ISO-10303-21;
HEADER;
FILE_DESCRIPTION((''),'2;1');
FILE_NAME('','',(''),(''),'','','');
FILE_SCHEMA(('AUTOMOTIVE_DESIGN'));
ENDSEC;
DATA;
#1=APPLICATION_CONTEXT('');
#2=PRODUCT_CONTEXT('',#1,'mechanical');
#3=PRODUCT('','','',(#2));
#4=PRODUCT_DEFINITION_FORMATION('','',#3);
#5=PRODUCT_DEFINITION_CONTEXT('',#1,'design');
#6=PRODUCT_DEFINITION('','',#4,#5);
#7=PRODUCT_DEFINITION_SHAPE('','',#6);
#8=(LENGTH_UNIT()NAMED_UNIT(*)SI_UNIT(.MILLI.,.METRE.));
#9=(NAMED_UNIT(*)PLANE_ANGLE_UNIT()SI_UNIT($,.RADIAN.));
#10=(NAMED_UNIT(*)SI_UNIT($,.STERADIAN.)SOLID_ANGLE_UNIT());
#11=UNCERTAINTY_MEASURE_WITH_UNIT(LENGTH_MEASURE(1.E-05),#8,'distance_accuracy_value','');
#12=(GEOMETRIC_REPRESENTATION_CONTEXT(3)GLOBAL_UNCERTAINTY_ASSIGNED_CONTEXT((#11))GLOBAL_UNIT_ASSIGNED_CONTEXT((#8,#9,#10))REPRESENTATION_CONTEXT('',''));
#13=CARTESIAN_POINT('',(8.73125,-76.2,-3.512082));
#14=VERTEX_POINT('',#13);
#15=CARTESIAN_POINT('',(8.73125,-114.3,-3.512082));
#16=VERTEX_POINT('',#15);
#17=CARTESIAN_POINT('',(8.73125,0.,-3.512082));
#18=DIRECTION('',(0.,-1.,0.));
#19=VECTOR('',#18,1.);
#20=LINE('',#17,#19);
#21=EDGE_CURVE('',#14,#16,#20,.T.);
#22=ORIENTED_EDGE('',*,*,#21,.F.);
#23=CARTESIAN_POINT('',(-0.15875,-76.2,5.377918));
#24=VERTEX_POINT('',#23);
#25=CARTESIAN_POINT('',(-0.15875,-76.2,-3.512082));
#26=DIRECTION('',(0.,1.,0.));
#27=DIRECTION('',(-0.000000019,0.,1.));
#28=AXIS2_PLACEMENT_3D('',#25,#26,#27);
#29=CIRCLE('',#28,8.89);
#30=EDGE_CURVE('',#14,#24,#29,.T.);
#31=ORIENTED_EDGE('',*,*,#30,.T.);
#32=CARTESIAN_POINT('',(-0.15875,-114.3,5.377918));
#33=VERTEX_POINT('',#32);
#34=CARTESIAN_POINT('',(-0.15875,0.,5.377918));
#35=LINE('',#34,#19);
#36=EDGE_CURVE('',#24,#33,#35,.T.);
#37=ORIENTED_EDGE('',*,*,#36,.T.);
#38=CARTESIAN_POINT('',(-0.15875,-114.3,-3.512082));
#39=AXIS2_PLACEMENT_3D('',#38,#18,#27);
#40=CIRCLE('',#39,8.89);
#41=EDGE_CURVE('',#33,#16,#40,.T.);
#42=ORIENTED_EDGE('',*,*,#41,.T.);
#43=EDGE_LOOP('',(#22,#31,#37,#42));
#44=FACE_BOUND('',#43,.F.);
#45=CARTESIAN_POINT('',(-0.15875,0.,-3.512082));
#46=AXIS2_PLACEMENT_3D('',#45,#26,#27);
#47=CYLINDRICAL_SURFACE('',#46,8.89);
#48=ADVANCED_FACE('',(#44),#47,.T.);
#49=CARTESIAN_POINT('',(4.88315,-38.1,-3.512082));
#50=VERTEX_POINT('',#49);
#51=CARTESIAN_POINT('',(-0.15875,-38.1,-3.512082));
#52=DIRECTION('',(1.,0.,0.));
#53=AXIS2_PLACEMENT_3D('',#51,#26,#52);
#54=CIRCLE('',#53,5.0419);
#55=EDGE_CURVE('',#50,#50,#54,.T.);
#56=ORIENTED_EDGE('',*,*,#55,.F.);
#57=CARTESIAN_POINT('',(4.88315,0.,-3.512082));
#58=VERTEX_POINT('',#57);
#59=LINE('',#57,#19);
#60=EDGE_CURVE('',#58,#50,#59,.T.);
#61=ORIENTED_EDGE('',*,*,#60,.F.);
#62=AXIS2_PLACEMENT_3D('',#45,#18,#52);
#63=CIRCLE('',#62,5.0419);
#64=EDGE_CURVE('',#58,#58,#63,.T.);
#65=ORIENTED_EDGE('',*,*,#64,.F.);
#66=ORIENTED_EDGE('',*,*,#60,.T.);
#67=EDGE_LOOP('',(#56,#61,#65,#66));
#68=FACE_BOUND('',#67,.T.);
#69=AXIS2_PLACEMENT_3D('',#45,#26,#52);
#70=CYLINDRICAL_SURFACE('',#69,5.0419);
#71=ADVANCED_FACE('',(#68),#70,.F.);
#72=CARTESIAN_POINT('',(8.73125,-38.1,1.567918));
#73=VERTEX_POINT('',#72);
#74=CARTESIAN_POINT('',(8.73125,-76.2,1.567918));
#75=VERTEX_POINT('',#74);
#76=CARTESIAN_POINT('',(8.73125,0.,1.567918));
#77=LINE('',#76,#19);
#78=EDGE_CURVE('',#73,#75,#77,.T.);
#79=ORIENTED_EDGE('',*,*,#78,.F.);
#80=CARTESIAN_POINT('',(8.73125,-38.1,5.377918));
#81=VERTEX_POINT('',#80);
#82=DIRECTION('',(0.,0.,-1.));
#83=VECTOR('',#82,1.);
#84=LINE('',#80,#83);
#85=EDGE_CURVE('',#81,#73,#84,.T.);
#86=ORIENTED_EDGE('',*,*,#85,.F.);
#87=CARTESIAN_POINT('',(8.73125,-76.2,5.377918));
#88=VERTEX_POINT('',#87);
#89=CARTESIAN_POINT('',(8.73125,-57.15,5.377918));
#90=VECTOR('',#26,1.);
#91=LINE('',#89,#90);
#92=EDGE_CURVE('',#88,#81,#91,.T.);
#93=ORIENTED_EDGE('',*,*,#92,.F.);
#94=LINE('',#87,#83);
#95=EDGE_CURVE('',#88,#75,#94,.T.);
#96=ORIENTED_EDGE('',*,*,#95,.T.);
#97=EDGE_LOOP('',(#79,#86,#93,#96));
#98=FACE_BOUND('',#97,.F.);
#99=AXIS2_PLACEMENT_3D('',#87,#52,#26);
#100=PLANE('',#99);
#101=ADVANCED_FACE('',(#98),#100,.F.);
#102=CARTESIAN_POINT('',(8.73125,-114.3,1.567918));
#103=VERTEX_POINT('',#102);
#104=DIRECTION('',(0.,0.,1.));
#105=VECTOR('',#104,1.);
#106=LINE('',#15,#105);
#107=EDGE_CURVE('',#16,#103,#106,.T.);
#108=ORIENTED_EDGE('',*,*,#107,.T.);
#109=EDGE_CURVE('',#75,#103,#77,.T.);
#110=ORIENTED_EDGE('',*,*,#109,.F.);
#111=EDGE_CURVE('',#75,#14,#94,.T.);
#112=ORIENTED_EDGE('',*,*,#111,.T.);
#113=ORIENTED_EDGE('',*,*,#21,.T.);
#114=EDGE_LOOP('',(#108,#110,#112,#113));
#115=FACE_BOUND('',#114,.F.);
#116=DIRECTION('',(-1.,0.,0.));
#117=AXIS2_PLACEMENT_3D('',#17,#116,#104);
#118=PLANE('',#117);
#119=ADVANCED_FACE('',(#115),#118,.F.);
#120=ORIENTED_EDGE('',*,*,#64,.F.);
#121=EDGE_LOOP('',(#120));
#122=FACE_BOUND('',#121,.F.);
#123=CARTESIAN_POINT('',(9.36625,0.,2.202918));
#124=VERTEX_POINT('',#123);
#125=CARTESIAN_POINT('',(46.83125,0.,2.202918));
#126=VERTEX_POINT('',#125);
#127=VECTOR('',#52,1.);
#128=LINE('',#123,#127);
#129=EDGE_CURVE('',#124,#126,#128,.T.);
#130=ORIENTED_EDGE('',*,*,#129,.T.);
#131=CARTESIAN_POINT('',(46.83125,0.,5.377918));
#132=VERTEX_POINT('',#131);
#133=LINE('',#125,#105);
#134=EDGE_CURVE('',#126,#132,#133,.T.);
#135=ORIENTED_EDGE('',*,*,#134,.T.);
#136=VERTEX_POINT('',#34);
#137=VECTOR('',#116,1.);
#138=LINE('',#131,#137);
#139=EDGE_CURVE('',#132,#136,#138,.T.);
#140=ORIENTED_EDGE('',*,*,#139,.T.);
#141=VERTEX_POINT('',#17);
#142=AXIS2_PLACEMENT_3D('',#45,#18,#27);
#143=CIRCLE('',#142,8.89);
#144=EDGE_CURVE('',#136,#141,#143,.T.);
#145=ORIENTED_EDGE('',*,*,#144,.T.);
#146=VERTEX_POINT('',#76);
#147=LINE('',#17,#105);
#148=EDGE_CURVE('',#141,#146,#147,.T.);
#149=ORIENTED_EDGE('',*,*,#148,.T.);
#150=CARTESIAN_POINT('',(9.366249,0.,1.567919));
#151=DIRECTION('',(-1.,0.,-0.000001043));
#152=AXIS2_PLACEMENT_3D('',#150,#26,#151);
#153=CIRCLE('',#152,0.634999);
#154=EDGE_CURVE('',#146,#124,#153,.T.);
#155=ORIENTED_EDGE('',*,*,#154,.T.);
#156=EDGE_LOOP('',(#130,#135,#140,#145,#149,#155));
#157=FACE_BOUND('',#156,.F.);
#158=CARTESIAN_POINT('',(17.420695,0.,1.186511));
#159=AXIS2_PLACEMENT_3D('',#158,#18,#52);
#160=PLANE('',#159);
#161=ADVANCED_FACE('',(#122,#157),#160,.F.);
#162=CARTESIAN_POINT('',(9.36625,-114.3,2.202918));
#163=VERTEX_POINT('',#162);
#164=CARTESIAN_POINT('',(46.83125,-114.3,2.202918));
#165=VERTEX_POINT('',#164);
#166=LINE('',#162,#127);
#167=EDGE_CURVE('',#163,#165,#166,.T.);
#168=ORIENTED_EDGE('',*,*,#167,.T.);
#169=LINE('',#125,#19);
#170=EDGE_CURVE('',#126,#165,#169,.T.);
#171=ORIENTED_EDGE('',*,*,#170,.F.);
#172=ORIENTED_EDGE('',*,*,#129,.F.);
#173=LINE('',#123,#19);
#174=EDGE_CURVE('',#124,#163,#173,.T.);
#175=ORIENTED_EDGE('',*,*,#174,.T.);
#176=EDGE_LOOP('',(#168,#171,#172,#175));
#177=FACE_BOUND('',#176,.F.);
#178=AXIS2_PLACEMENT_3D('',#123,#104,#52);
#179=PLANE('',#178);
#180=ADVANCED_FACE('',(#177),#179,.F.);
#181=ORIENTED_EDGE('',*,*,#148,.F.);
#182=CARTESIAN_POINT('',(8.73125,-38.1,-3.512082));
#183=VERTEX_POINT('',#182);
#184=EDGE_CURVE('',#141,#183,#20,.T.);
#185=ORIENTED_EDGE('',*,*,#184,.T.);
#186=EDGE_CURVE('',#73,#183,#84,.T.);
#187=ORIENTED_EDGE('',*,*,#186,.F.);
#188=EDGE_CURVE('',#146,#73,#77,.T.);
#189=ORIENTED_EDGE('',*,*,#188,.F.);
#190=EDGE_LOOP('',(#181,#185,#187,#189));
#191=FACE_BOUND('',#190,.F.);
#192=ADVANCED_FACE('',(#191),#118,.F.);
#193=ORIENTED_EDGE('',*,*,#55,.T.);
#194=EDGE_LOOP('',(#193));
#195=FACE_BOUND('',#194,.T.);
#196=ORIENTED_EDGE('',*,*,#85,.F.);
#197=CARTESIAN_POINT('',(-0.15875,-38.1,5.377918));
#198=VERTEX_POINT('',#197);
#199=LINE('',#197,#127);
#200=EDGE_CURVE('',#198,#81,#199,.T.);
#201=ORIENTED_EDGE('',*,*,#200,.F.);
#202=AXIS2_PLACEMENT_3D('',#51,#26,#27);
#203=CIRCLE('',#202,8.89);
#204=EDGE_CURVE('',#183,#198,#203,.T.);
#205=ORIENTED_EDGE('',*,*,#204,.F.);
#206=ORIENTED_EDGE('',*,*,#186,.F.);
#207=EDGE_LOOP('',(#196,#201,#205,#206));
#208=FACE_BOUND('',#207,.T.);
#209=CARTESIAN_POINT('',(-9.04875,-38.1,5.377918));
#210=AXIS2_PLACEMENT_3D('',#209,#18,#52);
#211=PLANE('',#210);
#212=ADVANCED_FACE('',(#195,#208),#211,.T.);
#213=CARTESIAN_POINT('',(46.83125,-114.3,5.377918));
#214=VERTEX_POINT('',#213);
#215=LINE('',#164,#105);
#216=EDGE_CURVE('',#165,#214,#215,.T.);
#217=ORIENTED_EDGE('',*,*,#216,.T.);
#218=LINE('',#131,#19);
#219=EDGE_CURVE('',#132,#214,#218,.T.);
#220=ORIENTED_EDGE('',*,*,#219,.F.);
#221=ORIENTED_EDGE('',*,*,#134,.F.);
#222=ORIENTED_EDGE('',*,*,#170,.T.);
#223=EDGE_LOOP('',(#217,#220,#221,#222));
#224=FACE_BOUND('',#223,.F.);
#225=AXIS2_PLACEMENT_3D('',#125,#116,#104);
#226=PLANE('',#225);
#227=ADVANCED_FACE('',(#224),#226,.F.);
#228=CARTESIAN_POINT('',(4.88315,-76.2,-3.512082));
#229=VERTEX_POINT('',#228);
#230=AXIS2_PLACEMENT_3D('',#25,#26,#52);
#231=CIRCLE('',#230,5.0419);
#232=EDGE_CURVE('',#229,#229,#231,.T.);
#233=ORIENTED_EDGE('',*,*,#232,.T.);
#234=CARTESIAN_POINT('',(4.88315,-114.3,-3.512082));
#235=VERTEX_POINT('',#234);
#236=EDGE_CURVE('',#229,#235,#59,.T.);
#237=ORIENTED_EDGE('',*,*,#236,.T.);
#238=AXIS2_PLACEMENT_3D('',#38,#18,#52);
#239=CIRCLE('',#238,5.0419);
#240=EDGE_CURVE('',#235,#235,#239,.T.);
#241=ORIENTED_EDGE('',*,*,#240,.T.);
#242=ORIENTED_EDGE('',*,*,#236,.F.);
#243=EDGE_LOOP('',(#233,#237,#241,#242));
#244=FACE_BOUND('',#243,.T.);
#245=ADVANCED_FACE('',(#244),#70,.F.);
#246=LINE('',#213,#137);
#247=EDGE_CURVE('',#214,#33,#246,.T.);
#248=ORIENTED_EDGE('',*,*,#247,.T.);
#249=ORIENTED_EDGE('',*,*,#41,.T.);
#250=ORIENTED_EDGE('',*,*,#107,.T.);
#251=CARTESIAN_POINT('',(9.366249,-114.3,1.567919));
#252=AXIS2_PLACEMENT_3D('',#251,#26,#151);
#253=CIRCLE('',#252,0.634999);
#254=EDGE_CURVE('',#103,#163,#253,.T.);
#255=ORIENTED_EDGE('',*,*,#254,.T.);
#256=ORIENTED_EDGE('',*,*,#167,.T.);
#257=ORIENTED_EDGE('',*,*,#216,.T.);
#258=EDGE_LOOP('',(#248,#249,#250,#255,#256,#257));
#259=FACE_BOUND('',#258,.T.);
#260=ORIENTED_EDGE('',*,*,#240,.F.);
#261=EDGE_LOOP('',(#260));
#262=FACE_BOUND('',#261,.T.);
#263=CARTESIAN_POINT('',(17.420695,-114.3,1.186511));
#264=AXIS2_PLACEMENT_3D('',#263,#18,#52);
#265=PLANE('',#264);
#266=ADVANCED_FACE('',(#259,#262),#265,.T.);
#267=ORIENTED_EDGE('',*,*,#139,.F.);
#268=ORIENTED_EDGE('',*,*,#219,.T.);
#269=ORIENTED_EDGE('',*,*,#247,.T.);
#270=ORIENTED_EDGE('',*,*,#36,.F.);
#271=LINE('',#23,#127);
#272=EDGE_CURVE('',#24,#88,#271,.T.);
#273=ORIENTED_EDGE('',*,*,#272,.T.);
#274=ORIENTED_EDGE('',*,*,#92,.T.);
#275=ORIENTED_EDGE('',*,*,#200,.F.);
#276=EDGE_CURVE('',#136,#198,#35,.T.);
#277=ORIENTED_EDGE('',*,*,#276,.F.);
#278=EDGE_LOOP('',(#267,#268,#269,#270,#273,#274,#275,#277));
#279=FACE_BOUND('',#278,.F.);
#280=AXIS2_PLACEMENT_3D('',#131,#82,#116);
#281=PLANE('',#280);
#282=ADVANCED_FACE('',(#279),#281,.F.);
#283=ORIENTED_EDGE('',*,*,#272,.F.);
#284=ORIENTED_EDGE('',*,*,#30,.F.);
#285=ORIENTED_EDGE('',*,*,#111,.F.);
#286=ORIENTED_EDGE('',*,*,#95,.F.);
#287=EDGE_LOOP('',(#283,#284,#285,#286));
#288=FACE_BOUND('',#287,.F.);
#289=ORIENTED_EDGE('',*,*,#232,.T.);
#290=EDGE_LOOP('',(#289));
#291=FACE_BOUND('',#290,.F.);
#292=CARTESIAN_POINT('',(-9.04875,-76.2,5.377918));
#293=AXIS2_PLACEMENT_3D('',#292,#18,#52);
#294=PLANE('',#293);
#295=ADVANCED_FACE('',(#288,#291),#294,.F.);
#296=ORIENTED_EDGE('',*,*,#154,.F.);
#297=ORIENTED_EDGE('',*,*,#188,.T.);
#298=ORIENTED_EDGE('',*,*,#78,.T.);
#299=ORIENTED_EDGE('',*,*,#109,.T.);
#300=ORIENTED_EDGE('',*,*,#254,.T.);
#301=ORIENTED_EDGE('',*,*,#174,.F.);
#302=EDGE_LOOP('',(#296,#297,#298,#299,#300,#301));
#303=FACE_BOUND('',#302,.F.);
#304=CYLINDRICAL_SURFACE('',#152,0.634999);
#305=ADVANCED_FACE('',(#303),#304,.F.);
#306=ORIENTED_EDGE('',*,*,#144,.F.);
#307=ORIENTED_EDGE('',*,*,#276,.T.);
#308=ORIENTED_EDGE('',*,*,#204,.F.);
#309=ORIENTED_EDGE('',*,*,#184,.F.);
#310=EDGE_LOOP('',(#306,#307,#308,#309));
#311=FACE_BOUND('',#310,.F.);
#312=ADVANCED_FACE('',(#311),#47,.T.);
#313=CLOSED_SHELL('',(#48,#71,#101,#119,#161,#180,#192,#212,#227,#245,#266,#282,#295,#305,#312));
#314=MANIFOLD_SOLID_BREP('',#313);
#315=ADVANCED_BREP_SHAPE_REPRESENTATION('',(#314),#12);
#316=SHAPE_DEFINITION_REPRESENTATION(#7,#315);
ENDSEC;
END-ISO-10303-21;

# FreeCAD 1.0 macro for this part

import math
import FreeCAD as App
import Part
import Sketcher
from FreeCAD import Vector
Q = App.Units.Quantity


def add_polygon(sketch, points):
    """Adds a closed chain of lines whose ends are joined by coincident constraints."""
    first, n = sketch.GeometryCount, len(points)
    for a, b in zip(points, points[1:] + points[:1]):
        sketch.addGeometry(Part.LineSegment(App.Vector(*a, 0), App.Vector(*b, 0)), False)
    for i in range(n):
        sketch.addConstraint(Sketcher.Constraint("Coincident", first + i, 2, first + (i + 1) % n, 1))

doc = App.newDocument("Part")
body = doc.addObject("PartDesign::Body", "Body")

# Sketch on XZ plane
sketch1 = body.newObject("Sketcher::SketchObject", "Sketch")
sketch1.AttachmentSupport = (doc.getObject("XZ_Plane"), [""])
sketch1.MapMode = "FlatFace"
sketch1.addGeometry([
    Part.LineSegment(Vector(8.73125, -3.512082, 0), Vector(8.73125, 1.567918, 0)),  # 0
    Part.ArcOfCircle(Part.Circle(Vector(9.366249, 1.567919, 0), Vector(0, 0, 1), 0.634999), math.radians(89.99994), math.radians(180.00006)),  # 1
    Part.LineSegment(Vector(9.36625, 2.202918, 0), Vector(46.83125, 2.202918, 0)),  # 2
    Part.LineSegment(Vector(46.83125, 2.202918, 0), Vector(46.83125, 5.377918, 0)),  # 3
    Part.LineSegment(Vector(46.83125, 5.377918, 0), Vector(-0.15875, 5.377918, 0)),  # 4
    Part.ArcOfCircle(Part.Circle(Vector(-0.15875, -3.512082, 0), Vector(0, 0, 1), 8.89), math.radians(90.000001), math.radians(359.999999)),  # 5
    Part.Circle(Vector(-0.15875, -3.512082, 0), Vector(0, 0, 1), 5.0419),  # 6
], False)
sketch1.addConstraint([
    Sketcher.Constraint("Tangent", 0, 2, 1, 2),
    Sketcher.Constraint("Tangent", 1, 1, 2, 1),
    Sketcher.Constraint("Coincident", 2, 2, 3, 1),
    Sketcher.Constraint("Coincident", 3, 2, 4, 1),
    Sketcher.Constraint("Tangent", 4, 2, 5, 1),
    Sketcher.Constraint("Tangent", 5, 2, 0, 1),
    Sketcher.Constraint("Vertical", 0),
    Sketcher.Constraint("Horizontal", 2),
    Sketcher.Constraint("Vertical", 3),
    Sketcher.Constraint("Horizontal", 4),
    Sketcher.Constraint("Coincident", 6, 3, 5, 3),
    Sketcher.Constraint("Radius", 5, Q("0.35 in")),
    Sketcher.Constraint("Diameter", 6, Q("0.397 in")),
    Sketcher.Constraint("DistanceY", 0, 1, 0, 2, Q("0.2 in")),
    Sketcher.Constraint("Radius", 1, Q("0.025 in")),
    Sketcher.Constraint("DistanceX", 4, 2, 4, 1, Q("1.85 in")),
    Sketcher.Constraint("DistanceX", -1, 1, 0, 2, Q("0.34375 in")),
    Sketcher.Constraint("DistanceY", -1, 1, 1, 3, Q("1.567919 mm")),
])
pad1 = body.newObject("PartDesign::Pad", "Pad")
pad1.Profile = sketch1
pad1.Length = Q("4.5 in")

# Sketch on XY plane
sketch2 = body.newObject("Sketcher::SketchObject", "Sketch001")
sketch2.AttachmentSupport = (doc.getObject("XY_Plane"), [""])
sketch2.MapMode = "FlatFace"
sketch2.AttachmentOffset = App.Placement(Vector(0, 0, 5.377918), App.Rotation())
add_polygon(sketch2, [(-9.04875, -38.1), (-9.04875, -76.2), (8.73125, -76.2), (8.73125, -38.1)])  # lines 0-3
sketch2.addConstraint([
    Sketcher.Constraint("Vertical", 0),
    Sketcher.Constraint("Horizontal", 1),
    Sketcher.Constraint("Vertical", 2),
    Sketcher.Constraint("Horizontal", 3),
    Sketcher.Constraint("DistanceX", 1, 1, 1, 2, Q("0.7 in")),
    Sketcher.Constraint("DistanceY", 0, 2, 0, 1, Q("1.5 in")),
    Sketcher.Constraint("DistanceY", 0, 2, -1, 1, Q("3 in")),
    Sketcher.Constraint("DistanceX", -1, 1, 1, 2, Q("0.34375 in")),
])
pocket1 = body.newObject("PartDesign::Pocket", "Pocket")
pocket1.Profile = sketch2
pocket1.Length = Q("1 in")

doc.recompute()
